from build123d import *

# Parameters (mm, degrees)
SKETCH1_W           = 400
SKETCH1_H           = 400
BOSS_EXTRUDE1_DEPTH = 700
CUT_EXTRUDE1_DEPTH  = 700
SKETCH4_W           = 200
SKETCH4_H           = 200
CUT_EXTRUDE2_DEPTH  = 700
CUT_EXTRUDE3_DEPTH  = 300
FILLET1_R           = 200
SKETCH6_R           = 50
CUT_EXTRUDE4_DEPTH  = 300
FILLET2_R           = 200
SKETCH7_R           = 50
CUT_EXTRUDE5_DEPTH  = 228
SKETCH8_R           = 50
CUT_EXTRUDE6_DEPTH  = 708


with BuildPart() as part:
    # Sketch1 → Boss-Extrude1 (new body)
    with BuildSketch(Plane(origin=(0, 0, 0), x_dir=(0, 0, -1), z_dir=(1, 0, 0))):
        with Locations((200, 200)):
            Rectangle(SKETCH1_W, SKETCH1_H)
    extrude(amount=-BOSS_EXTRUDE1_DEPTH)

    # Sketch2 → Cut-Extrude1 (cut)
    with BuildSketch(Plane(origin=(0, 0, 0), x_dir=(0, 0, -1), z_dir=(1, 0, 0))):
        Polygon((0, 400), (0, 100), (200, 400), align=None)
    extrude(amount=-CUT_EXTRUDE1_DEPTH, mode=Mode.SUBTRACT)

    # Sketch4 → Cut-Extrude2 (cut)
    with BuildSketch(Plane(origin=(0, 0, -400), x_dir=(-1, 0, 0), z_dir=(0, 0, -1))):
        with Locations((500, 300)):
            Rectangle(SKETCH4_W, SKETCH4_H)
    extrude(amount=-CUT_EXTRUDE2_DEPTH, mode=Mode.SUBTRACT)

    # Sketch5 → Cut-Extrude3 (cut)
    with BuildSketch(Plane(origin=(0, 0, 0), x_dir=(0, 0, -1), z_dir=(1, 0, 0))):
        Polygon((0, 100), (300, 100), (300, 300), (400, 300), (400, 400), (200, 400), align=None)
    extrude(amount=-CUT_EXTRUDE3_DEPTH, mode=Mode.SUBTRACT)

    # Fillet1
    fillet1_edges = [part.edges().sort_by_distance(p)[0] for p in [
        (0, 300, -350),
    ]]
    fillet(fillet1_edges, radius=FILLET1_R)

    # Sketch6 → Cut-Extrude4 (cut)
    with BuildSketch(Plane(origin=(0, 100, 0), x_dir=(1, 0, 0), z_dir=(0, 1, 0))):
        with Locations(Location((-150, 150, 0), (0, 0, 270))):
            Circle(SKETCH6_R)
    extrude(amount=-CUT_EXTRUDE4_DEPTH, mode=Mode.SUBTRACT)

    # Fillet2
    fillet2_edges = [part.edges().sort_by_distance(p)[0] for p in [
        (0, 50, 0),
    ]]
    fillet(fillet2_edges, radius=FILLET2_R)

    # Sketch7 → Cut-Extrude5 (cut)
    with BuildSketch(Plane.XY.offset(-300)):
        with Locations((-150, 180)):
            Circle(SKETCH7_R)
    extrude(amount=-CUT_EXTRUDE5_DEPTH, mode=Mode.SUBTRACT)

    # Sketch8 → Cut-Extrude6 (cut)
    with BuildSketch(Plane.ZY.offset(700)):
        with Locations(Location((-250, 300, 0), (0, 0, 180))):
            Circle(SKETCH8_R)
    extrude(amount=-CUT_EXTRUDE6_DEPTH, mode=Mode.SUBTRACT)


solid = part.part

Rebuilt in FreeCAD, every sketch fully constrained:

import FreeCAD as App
import Part
import Sketcher

V = App.Vector


def edges_at(feature, points):
    """Names of the edges that pass closest to the given points."""
    edges = feature.Shape.Edges
    near = lambda p: min(range(len(edges)), key=lambda i: edges[i].distToShape(Part.Vertex(*p))[0])
    return sorted({f"Edge{near(p) + 1}" for p in points})


def add_polygon(sketch, points):
    """Adds a closed chain of lines whose ends are joined by coincident constraints."""
    first, n = sketch.GeometryCount, len(points)
    for a, b in zip(points, points[1:] + points[:1]):
        sketch.addGeometry(Part.LineSegment(App.Vector(*a, 0), App.Vector(*b, 0)), False)
    for i in range(n):
        sketch.addConstraint(Sketcher.Constraint("Coincident", first + i, 2, first + (i + 1) % n, 1))

doc = App.newDocument("Part")
params = doc.addObject("Spreadsheet::Sheet", "Params")
for row, (alias, value) in enumerate([
    ("sketch1_width", "400 mm"),
    ("pad1_length", "700 mm"),
    ("sketch2_width", "300 mm"),
    ("sketch2_height", "200 mm"),
    ("pocket1_length", "700 mm"),
    ("sketch3_width", "200 mm"),
    ("pocket2_length", "700 mm"),
    ("sketch4_width", "200 mm"),
    ("sketch4_width2", "100 mm"),
    ("sketch4_height", "300 mm"),
    ("pocket3_length", "300 mm"),
    ("fillet_radius", "200 mm"),
    ("sketch5_diameter", "100 mm"),
    ("pocket4_length", "300 mm"),
    ("fillet2_radius", "200 mm"),
    ("sketch6_diameter", "100 mm"),
    ("pocket5_length", "228 mm"),
    ("sketch7_diameter", "100 mm"),
    ("pocket6_length", "708 mm"),
], start=1):
    params.set(f"A{row}", alias)
    params.set(f"B{row}", "=" + value)
    params.setAlias(f"B{row}", alias)

body = doc.addObject("PartDesign::Body", "Body")

sketch1 = body.newObject("Sketcher::SketchObject", "Sketch")
sketch1.AttachmentSupport = (doc.getObject("YZ_Plane"), [""])
sketch1.MapMode = "FlatFace"
add_polygon(sketch1, [(400, 0), (0, 0), (0, -400), (400, -400)])
sketch1.addConstraint(Sketcher.Constraint("Horizontal", 0))
sketch1.addConstraint(Sketcher.Constraint("Vertical", 1))
sketch1.addConstraint(Sketcher.Constraint("Horizontal", 2))
sketch1.addConstraint(Sketcher.Constraint("Vertical", 3))
sketch1.addConstraint(Sketcher.Constraint("Coincident", 0, 2, -1, 1))
sketch1.addConstraint(Sketcher.Constraint("Equal", 2, 1))
sketch1.addConstraint(Sketcher.Constraint("DistanceX", 0, 2, 0, 1, 400.0))
sketch1.setExpression("Constraints[10]", "Params.sketch1_width")
pad1 = body.newObject("PartDesign::Pad", "Pad")
pad1.Profile = sketch1
pad1.setExpression("Length", "Params.pad1_length")
pad1.Reversed = True

sketch2 = body.newObject("Sketcher::SketchObject", "Sketch001")
sketch2.AttachmentSupport = (doc.getObject("YZ_Plane"), [""])
sketch2.MapMode = "FlatFace"
add_polygon(sketch2, [(400, 0), (100, 0), (400, -200)])
sketch2.addConstraint(Sketcher.Constraint("Horizontal", 0))
sketch2.addConstraint(Sketcher.Constraint("Vertical", 2))
sketch2.addConstraint(Sketcher.Constraint("PointOnObject", 0, 2, -1))
sketch2.addConstraint(Sketcher.Constraint("DistanceX", 0, 2, 0, 1, 300.0))
sketch2.addConstraint(Sketcher.Constraint("DistanceY", 2, 1, 2, 2, 200.0))
sketch2.addConstraint(Sketcher.Constraint("DistanceX", -1, 1, 0, 2, 100.0))
sketch2.setExpression("Constraints[6]", "Params.sketch2_width")
sketch2.setExpression("Constraints[7]", "Params.sketch2_height")
pocket1 = body.newObject("PartDesign::Pocket", "Pocket")
pocket1.Profile = sketch2
pocket1.setExpression("Length", "Params.pocket1_length")

sketch3 = body.newObject("Sketcher::SketchObject", "Sketch002")
sketch3.AttachmentSupport = (doc.getObject("XY_Plane"), [""])
sketch3.MapMode = "FlatFace"
sketch3.AttachmentOffset = App.Placement(V(0, 0, -400), App.Rotation())
add_polygon(sketch3, [(-400, 400), (-400, 200), (-600, 200), (-600, 400)])
sketch3.addConstraint(Sketcher.Constraint("Vertical", 0))
sketch3.addConstraint(Sketcher.Constraint("Horizontal", 1))
sketch3.addConstraint(Sketcher.Constraint("Vertical", 2))
sketch3.addConstraint(Sketcher.Constraint("Horizontal", 3))
sketch3.addConstraint(Sketcher.Constraint("Equal", 3, 0))
sketch3.addConstraint(Sketcher.Constraint("DistanceX", 1, 2, 1, 1, 200.0))
sketch3.addConstraint(Sketcher.Constraint("DistanceX", 0, 2, -1, 1, 400.0))
sketch3.addConstraint(Sketcher.Constraint("DistanceY", -1, 1, 0, 2, 200.0))
sketch3.setExpression("Constraints[9]", "Params.sketch3_width")
pocket2 = body.newObject("PartDesign::Pocket", "Pocket001")
pocket2.Profile = sketch3
pocket2.setExpression("Length", "Params.pocket2_length")
pocket2.Reversed = True

sketch4 = body.newObject("Sketcher::SketchObject", "Sketch003")
sketch4.AttachmentSupport = (doc.getObject("YZ_Plane"), [""])
sketch4.MapMode = "FlatFace"
add_polygon(sketch4, [(100, 0), (100, -300), (300, -300), (300, -400), (400, -400), (400, -200)])
sketch4.addConstraint(Sketcher.Constraint("Vertical", 0))
sketch4.addConstraint(Sketcher.Constraint("Horizontal", 1))
sketch4.addConstraint(Sketcher.Constraint("Vertical", 2))
sketch4.addConstraint(Sketcher.Constraint("Horizontal", 3))
sketch4.addConstraint(Sketcher.Constraint("Vertical", 4))
sketch4.addConstraint(Sketcher.Constraint("PointOnObject", 5, 2, -1))
sketch4.addConstraint(Sketcher.Constraint("Equal", 3, 2))
sketch4.addConstraint(Sketcher.Constraint("Equal", 1, 4))
sketch4.addConstraint(Sketcher.Constraint("DistanceX", 1, 1, 1, 2, 200.0))
sketch4.addConstraint(Sketcher.Constraint("DistanceX", 3, 1, 3, 2, 100.0))
sketch4.addConstraint(Sketcher.Constraint("DistanceY", 0, 2, 0, 1, 300.0))
sketch4.addConstraint(Sketcher.Constraint("DistanceX", -1, 1, 0, 2, 100.0))
sketch4.setExpression("Constraints[14]", "Params.sketch4_width")
sketch4.setExpression("Constraints[15]", "Params.sketch4_width2")
sketch4.setExpression("Constraints[16]", "Params.sketch4_height")
pocket3 = body.newObject("PartDesign::Pocket", "Pocket002")
pocket3.Profile = sketch4
pocket3.setExpression("Length", "Params.pocket3_length")
doc.recompute()

fillet = body.newObject("PartDesign::Fillet", "Fillet")
fillet.Base = (pocket3, edges_at(pocket3, [(0, 300, -350)]))
fillet.setExpression("Radius", "Params.fillet_radius")

sketch5 = body.newObject("Sketcher::SketchObject", "Sketch004")
sketch5.AttachmentSupport = (doc.getObject("XZ_Plane"), [""])
sketch5.MapMode = "FlatFace"
sketch5.AttachmentOffset = App.Placement(V(0, 0, -100), App.Rotation())
sketch5.addGeometry(Part.Circle(V(-150, -150, 0), V(0, 0, 1), 50), False)
sketch5.addConstraint(Sketcher.Constraint("Diameter", 0, 100.0))
sketch5.addConstraint(Sketcher.Constraint("DistanceX", 0, 3, -1, 1, 150.0))
sketch5.addConstraint(Sketcher.Constraint("DistanceY", 0, 3, -1, 1, 150.0))
sketch5.setExpression("Constraints[0]", "Params.sketch5_diameter")
pocket4 = body.newObject("PartDesign::Pocket", "Pocket003")
pocket4.Profile = sketch5
pocket4.setExpression("Length", "Params.pocket4_length")
pocket4.Reversed = True
doc.recompute()

fillet2 = body.newObject("PartDesign::Fillet", "Fillet001")
fillet2.Base = (pocket4, edges_at(pocket4, [(0, 50, 0)]))
fillet2.setExpression("Radius", "Params.fillet2_radius")

sketch6 = body.newObject("Sketcher::SketchObject", "Sketch005")
sketch6.AttachmentSupport = (doc.getObject("XY_Plane"), [""])
sketch6.MapMode = "FlatFace"
sketch6.AttachmentOffset = App.Placement(V(0, 0, -300), App.Rotation())
sketch6.addGeometry(Part.Circle(V(-150, 180, 0), V(0, 0, 1), 50), False)
sketch6.addConstraint(Sketcher.Constraint("Diameter", 0, 100.0))
sketch6.addConstraint(Sketcher.Constraint("DistanceX", 0, 3, -1, 1, 150.0))
sketch6.addConstraint(Sketcher.Constraint("DistanceY", -1, 1, 0, 3, 180.0))
sketch6.setExpression("Constraints[0]", "Params.sketch6_diameter")
pocket5 = body.newObject("PartDesign::Pocket", "Pocket004")
pocket5.Profile = sketch6
pocket5.setExpression("Length", "Params.pocket5_length")

sketch7 = body.newObject("Sketcher::SketchObject", "Sketch006")
sketch7.AttachmentSupport = (doc.getObject("YZ_Plane"), [""])
sketch7.MapMode = "FlatFace"
sketch7.AttachmentOffset = App.Placement(V(0, 0, -700), App.Rotation())
sketch7.addGeometry(Part.Circle(V(300, -250, 0), V(0, 0, 1), 50), False)
sketch7.addConstraint(Sketcher.Constraint("Diameter", 0, 100.0))
sketch7.addConstraint(Sketcher.Constraint("DistanceX", -1, 1, 0, 3, 300.0))
sketch7.addConstraint(Sketcher.Constraint("DistanceY", 0, 3, -1, 1, 250.0))
sketch7.setExpression("Constraints[0]", "Params.sketch7_diameter")
pocket6 = body.newObject("PartDesign::Pocket", "Pocket005")
pocket6.Profile = sketch7
pocket6.setExpression("Length", "Params.pocket6_length")
pocket6.Reversed = True

doc.recompute()
